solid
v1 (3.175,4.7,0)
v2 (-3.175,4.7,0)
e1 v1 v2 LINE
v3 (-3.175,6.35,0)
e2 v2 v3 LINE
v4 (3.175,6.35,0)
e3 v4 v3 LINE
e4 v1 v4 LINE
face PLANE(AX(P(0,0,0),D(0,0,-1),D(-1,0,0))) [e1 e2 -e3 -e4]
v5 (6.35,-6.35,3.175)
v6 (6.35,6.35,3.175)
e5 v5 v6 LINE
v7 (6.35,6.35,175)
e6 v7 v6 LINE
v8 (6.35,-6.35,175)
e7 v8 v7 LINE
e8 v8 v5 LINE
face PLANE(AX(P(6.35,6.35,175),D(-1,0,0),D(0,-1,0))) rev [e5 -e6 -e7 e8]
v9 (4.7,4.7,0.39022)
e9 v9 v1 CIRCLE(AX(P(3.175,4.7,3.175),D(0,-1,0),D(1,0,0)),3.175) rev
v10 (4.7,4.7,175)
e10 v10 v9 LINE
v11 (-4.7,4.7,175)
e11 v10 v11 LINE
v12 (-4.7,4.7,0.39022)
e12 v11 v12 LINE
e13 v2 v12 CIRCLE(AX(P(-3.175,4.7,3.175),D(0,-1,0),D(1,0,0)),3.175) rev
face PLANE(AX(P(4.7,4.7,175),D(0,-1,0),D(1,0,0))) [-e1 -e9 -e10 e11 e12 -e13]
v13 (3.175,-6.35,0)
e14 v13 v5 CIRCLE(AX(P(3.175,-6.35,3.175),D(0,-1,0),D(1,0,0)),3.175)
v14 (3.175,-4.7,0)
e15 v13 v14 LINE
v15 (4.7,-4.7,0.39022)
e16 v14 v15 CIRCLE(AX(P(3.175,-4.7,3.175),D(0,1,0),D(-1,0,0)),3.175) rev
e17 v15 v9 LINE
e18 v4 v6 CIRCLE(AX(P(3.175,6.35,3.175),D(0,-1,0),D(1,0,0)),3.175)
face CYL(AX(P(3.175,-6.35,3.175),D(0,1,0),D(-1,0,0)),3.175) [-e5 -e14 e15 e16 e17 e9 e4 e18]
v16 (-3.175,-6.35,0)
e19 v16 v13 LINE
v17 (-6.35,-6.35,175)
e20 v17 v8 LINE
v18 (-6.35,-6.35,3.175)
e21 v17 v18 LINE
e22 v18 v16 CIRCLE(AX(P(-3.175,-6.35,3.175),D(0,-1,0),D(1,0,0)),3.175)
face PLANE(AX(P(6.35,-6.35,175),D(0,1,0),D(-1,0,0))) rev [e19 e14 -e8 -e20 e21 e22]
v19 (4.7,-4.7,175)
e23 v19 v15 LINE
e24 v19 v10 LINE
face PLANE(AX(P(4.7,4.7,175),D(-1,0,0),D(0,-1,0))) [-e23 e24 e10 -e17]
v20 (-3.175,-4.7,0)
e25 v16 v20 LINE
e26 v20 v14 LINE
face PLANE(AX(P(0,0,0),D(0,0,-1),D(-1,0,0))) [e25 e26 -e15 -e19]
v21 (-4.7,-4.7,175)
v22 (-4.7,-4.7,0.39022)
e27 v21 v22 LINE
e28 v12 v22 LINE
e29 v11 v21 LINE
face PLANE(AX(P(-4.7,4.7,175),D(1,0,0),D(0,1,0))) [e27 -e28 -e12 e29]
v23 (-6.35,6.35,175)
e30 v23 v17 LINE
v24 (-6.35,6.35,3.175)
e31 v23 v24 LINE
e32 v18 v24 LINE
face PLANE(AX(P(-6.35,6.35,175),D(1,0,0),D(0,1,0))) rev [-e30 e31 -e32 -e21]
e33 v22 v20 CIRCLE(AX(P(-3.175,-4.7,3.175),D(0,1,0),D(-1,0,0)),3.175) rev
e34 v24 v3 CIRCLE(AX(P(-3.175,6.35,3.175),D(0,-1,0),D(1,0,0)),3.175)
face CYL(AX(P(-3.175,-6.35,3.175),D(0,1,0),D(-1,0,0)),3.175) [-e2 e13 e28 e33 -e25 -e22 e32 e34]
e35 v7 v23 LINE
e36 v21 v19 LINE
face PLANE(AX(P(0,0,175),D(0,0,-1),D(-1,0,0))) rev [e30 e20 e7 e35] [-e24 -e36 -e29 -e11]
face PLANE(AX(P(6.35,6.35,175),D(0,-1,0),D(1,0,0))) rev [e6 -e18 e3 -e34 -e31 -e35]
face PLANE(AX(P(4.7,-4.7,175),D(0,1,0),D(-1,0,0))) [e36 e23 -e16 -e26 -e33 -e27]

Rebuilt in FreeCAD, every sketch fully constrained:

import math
import FreeCAD as App
import Part
import Sketcher
from FreeCAD import Vector

doc = App.newDocument("Part")
body = doc.addObject("PartDesign::Body", "Body")

# Sketch on XY plane
sketch1 = body.newObject("Sketcher::SketchObject", "Sketch")
sketch1.AttachmentSupport = (doc.getObject("XY_Plane"), [""])
sketch1.MapMode = "FlatFace"
sketch1.addGeometry([
    Part.LineSegment(Vector(-6.35, 6.35, 0), Vector(-6.35, -6.35, 0)),  # 0
    Part.LineSegment(Vector(-6.35, -6.35, 0), Vector(6.35, -6.35, 0)),  # 1
    Part.LineSegment(Vector(6.35, -6.35, 0), Vector(6.35, 6.35, 0)),  # 2
    Part.LineSegment(Vector(6.35, 6.35, 0), Vector(-6.35, 6.35, 0)),  # 3
    Part.LineSegment(Vector(4.7, -4.7, 0), Vector(-4.7, -4.7, 0)),  # 4
    Part.LineSegment(Vector(-4.7, -4.7, 0), Vector(-4.7, 4.7, 0)),  # 5
    Part.LineSegment(Vector(-4.7, 4.7, 0), Vector(4.7, 4.7, 0)),  # 6
    Part.LineSegment(Vector(4.7, 4.7, 0), Vector(4.7, -4.7, 0)),  # 7
], False)
sketch1.addConstraint([
    Sketcher.Constraint("Coincident", 0, 2, 1, 1),
    Sketcher.Constraint("Coincident", 1, 2, 2, 1),
    Sketcher.Constraint("Coincident", 2, 2, 3, 1),
    Sketcher.Constraint("Coincident", 3, 2, 0, 1),
    Sketcher.Constraint("Coincident", 4, 2, 5, 1),
    Sketcher.Constraint("Coincident", 5, 2, 6, 1),
    Sketcher.Constraint("Coincident", 6, 2, 7, 1),
    Sketcher.Constraint("Coincident", 7, 2, 4, 1),
    Sketcher.Constraint("Vertical", 0),
    Sketcher.Constraint("Horizontal", 1),
    Sketcher.Constraint("Vertical", 2),
    Sketcher.Constraint("Horizontal", 3),
    Sketcher.Constraint("Horizontal", 4),
    Sketcher.Constraint("Vertical", 5),
    Sketcher.Constraint("Horizontal", 6),
    Sketcher.Constraint("Vertical", 7),
    Sketcher.Constraint("Symmetric", 0, 2, 2, 2, -1, 1),
    Sketcher.Constraint("Symmetric", 4, 2, 6, 2, -1, 1),
    Sketcher.Constraint("Equal", 3, 0),
    Sketcher.Constraint("Equal", 6, 5),
    Sketcher.Constraint("DistanceX", 1, 1, 1, 2, 12.7),
    Sketcher.Constraint("DistanceX", 4, 2, 4, 1, 9.4),
])
pad1 = body.newObject("PartDesign::Pad", "Pad")
pad1.Profile = sketch1
pad1.Length = 175

# Sketch on XZ plane
sketch2 = body.newObject("Sketcher::SketchObject", "Sketch001")
sketch2.AttachmentSupport = (doc.getObject("XZ_Plane"), [""])
sketch2.MapMode = "FlatFace"
sketch2.AttachmentOffset = App.Placement(Vector(0, 0, -6.35), App.Rotation())
sketch2.addGeometry([
    Part.LineSegment(Vector(-6.35, 0, 0), Vector(-6.35, 3.175, 0)),  # 0
    Part.ArcOfCircle(Part.Circle(Vector(-3.175, 3.175, 0), Vector(0, 0, 1), 3.175), math.radians(-180), math.radians(-90)),  # 1
    Part.LineSegment(Vector(-3.175, 0, 0), Vector(-6.35, 0, 0)),  # 2
    Part.LineSegment(Vector(6.35, 0, 0), Vector(3.175, 0, 0)),  # 3
    Part.ArcOfCircle(Part.Circle(Vector(3.175, 3.175, 0), Vector(0, 0, 1), 3.175), math.radians(-90), math.radians(0)),  # 4
    Part.LineSegment(Vector(6.35, 3.175, 0), Vector(6.35, 0, 0)),  # 5
], False)
sketch2.addConstraint([
    Sketcher.Constraint("Tangent", 0, 2, 1, 1),
    Sketcher.Constraint("Tangent", 1, 2, 2, 1),
    Sketcher.Constraint("Coincident", 2, 2, 0, 1),
    Sketcher.Constraint("Tangent", 3, 2, 4, 1),
    Sketcher.Constraint("Tangent", 4, 2, 5, 1),
    Sketcher.Constraint("Coincident", 5, 2, 3, 1),
    Sketcher.Constraint("Vertical", 0),
    Sketcher.Constraint("Horizontal", 2),
    Sketcher.Constraint("Horizontal", 3),
    Sketcher.Constraint("Vertical", 5),
    Sketcher.Constraint("Equal", 1, 4),
    Sketcher.Constraint("Symmetric", 1, 2, 3, 2, -1, 1),
    Sketcher.Constraint("PointOnObject", 1, 2, -1),
    Sketcher.Constraint("Radius", 1, 3.175),
    Sketcher.Constraint("DistanceX", 0, 2, 4, 2, 12.7),
])
pocket1 = body.newObject("PartDesign::Pocket", "Pocket")
pocket1.Profile = sketch2
pocket1.Type = "ThroughAll"
pocket1.Reversed = True

doc.recompute()
